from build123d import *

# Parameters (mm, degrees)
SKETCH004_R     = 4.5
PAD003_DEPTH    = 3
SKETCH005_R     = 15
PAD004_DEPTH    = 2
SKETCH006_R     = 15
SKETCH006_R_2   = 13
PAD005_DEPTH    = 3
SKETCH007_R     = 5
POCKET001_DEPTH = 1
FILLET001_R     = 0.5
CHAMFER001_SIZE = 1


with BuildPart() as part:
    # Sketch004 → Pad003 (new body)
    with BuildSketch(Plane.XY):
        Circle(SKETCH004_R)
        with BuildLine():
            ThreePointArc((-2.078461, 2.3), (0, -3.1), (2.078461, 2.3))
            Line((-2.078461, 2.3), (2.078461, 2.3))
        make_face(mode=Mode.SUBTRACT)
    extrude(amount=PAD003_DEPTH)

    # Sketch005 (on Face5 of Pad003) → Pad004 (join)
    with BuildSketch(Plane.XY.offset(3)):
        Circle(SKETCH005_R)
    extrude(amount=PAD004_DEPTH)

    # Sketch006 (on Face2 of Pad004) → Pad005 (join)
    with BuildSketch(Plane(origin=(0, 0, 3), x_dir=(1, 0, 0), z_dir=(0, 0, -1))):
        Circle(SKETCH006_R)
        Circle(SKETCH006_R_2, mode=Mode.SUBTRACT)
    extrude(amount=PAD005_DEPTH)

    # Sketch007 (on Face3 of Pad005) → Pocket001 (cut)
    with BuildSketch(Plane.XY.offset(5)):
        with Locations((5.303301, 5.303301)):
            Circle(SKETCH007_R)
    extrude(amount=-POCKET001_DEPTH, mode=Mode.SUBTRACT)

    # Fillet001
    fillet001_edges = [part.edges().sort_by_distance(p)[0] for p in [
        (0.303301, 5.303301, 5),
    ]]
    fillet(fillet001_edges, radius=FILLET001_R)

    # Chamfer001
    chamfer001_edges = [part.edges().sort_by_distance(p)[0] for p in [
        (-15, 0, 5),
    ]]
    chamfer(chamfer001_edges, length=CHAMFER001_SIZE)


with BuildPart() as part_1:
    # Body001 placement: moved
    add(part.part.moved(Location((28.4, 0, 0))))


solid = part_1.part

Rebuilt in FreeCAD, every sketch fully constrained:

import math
import FreeCAD as App
import Part
import Sketcher
from FreeCAD import Vector


def edges_at(feature, points):
    """Names of the edges that pass closest to the given points."""
    edges = feature.Shape.Edges
    near = lambda p: min(range(len(edges)), key=lambda i: edges[i].distToShape(Part.Vertex(*p))[0])
    return sorted({f"Edge{near(p) + 1}" for p in points})

doc = App.newDocument("Part")
body = doc.addObject("PartDesign::Body", "Body")

# Sketch on XY plane
sketch1 = body.newObject("Sketcher::SketchObject", "Sketch")
sketch1.AttachmentSupport = (doc.getObject("XY_Plane"), [""])
sketch1.MapMode = "FlatFace"
sketch1.addGeometry(Part.Circle(Vector(0, 0, 0), Vector(0, 0, 1), 4.5), False)
sketch1.addGeometry(Part.ArcOfCircle(Part.Circle(Vector(0, 0, 0), Vector(0, 0, 1), 3.1), math.radians(132), math.radians(408)), False)
sketch1.addGeometry(Part.LineSegment(Vector(-2.1, 2.3, 0), Vector(2.1, 2.3, 0)), False)
sketch1.addConstraint(Sketcher.Constraint("Coincident", 1, 1, 2, 1))
sketch1.addConstraint(Sketcher.Constraint("Coincident", 2, 2, 1, 2))
sketch1.addConstraint(Sketcher.Constraint("Horizontal", 2))
sketch1.addConstraint(Sketcher.Constraint("Coincident", 0, 3, -1, 1))
sketch1.addConstraint(Sketcher.Constraint("Coincident", 1, 3, -1, 1))
sketch1.addConstraint(Sketcher.Constraint("Diameter", 0, 9.0))
sketch1.addConstraint(Sketcher.Constraint("Radius", 1, 3.1))
sketch1.addConstraint(Sketcher.Constraint("DistanceY", -1, 1, 1, 1, 2.3))
pad1 = body.newObject("PartDesign::Pad", "Pad")
pad1.Profile = sketch1
pad1.Length = 3

# Sketch on XY plane
sketch2 = body.newObject("Sketcher::SketchObject", "Sketch001")
sketch2.AttachmentSupport = (doc.getObject("XY_Plane"), [""])
sketch2.MapMode = "FlatFace"
sketch2.AttachmentOffset = App.Placement(Vector(0, 0, 3), App.Rotation())
sketch2.addGeometry(Part.Circle(Vector(0, 0, 0), Vector(0, 0, 1), 15), False)
sketch2.addConstraint(Sketcher.Constraint("Coincident", 0, 3, -1, 1))
sketch2.addConstraint(Sketcher.Constraint("Diameter", 0, 30.0))
pad2 = body.newObject("PartDesign::Pad", "Pad001")
pad2.Profile = sketch2
pad2.Length = 2

# Sketch on XY plane
sketch3 = body.newObject("Sketcher::SketchObject", "Sketch002")
sketch3.AttachmentSupport = (doc.getObject("XY_Plane"), [""])
sketch3.MapMode = "FlatFace"
sketch3.AttachmentOffset = App.Placement(Vector(0, 0, 3), App.Rotation())
sketch3.addGeometry(Part.Circle(Vector(0, 0, 0), Vector(0, 0, 1), 15), False)
sketch3.addGeometry(Part.Circle(Vector(0, 0, 0), Vector(0, 0, 1), 13), False)
sketch3.addConstraint(Sketcher.Constraint("Coincident", 0, 3, -1, 1))
sketch3.addConstraint(Sketcher.Constraint("Coincident", 1, 3, -1, 1))
sketch3.addConstraint(Sketcher.Constraint("Diameter", 0, 30.0))
sketch3.addConstraint(Sketcher.Constraint("Diameter", 1, 26.0))
pad3 = body.newObject("PartDesign::Pad", "Pad002")
pad3.Profile = sketch3
pad3.Length = 3
pad3.Reversed = True

# Sketch on XY plane
sketch4 = body.newObject("Sketcher::SketchObject", "Sketch003")
sketch4.AttachmentSupport = (doc.getObject("XY_Plane"), [""])
sketch4.MapMode = "FlatFace"
sketch4.AttachmentOffset = App.Placement(Vector(0, 0, 5), App.Rotation())
sketch4.addGeometry(Part.Circle(Vector(5, 5, 0), Vector(0, 0, 1), 5), False)
sketch4.addConstraint(Sketcher.Constraint("Diameter", 0, 10.0))
sketch4.addConstraint(Sketcher.Constraint("DistanceX", -1, 1, 0, 3, 5.303301))
sketch4.addConstraint(Sketcher.Constraint("DistanceY", -1, 1, 0, 3, 5.303301))
pocket1 = body.newObject("PartDesign::Pocket", "Pocket")
pocket1.Profile = sketch4
pocket1.Length = 1
doc.recompute()

fillet = body.newObject("PartDesign::Fillet", "Fillet")
fillet.Base = (pocket1, edges_at(pocket1, [(0.303, 5.303, 5)]))
fillet.Radius = 0.5
doc.recompute()

chamfer = body.newObject("PartDesign::Chamfer", "Chamfer")
chamfer.Base = (fillet, edges_at(fillet, [(-15, 0, 5)]))
chamfer.Size = 1
body2 = doc.addObject("PartDesign::Body", "Body001")
doc.recompute()

body.Placement = App.Placement(Vector(28.4, 0, 0), App.Rotation(Vector(0, 0, 1), 0))
boolean = body2.newObject("PartDesign::Boolean", "Boolean")
boolean.Type = "Fuse"
boolean.addObjects([body])

doc.recompute()
